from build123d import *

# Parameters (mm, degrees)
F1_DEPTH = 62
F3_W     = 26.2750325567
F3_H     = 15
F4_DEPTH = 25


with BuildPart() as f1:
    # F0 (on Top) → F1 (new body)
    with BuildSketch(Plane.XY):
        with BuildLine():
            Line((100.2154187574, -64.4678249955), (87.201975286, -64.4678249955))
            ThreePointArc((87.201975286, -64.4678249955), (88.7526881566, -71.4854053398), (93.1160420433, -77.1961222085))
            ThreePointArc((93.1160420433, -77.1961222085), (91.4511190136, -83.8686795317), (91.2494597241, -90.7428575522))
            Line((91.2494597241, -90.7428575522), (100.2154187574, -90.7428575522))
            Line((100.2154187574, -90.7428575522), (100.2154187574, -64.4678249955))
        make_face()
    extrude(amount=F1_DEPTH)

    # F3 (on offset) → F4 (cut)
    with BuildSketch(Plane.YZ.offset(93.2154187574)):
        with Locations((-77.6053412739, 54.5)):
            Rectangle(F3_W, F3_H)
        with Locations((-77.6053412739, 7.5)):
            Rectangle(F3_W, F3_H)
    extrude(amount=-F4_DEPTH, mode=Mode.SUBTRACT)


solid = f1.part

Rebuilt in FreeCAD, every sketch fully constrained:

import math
import FreeCAD as App
import Part
import Sketcher
Q = App.Units.Quantity


def add_polygon(sketch, points):
    """Adds a closed chain of lines whose ends are joined by coincident constraints."""
    first, n = sketch.GeometryCount, len(points)
    for a, b in zip(points, points[1:] + points[:1]):
        sketch.addGeometry(Part.LineSegment(App.Vector(*a, 0), App.Vector(*b, 0)), False)
    for i in range(n):
        sketch.addConstraint(Sketcher.Constraint("Coincident", first + i, 2, first + (i + 1) % n, 1))

doc = App.newDocument("Part")
body = doc.addObject("PartDesign::Body", "Body")

# Sketch on XY plane
sketch1 = doc.addObject("Sketcher::SketchObject", "Sketch")
body.addObject(sketch1)
sketch1.AttachmentSupport = (doc.XY_Plane, [""])
sketch1.MapMode = "FlatFace"
sketch1.addGeometry(Part.LineSegment(App.Vector(100, -64, 0), App.Vector(87, -64, 0)), False)
sketch1.addGeometry(Part.ArcOfCircle(Part.Circle(App.Vector(104, -64, 0), App.Vector(0, 0, 1), 17), math.radians(180), math.radians(230)), False)
sketch1.addGeometry(Part.ArcOfCircle(Part.Circle(App.Vector(123, -88, 0), App.Vector(0, 0, 1), 32), math.radians(160), math.radians(184)), False)
sketch1.addGeometry(Part.LineSegment(App.Vector(91, -91, 0), App.Vector(100, -91, 0)), False)
sketch1.addGeometry(Part.LineSegment(App.Vector(100, -91, 0), App.Vector(100, -64, 0)), False)
sketch1.addConstraint(Sketcher.Constraint("Coincident", 0, 2, 1, 1))
sketch1.addConstraint(Sketcher.Constraint("Coincident", 1, 2, 2, 1))
sketch1.addConstraint(Sketcher.Constraint("Coincident", 2, 2, 3, 1))
sketch1.addConstraint(Sketcher.Constraint("Coincident", 3, 2, 4, 1))
sketch1.addConstraint(Sketcher.Constraint("Coincident", 4, 2, 0, 1))
sketch1.addConstraint(Sketcher.Constraint("Horizontal", 0))
sketch1.addConstraint(Sketcher.Constraint("Horizontal", 3))
sketch1.addConstraint(Sketcher.Constraint("Vertical", 4))
sketch1.addConstraint(Sketcher.Constraint("Horizontal", 1, 3, 0, 2))
sketch1.addConstraint(Sketcher.Constraint("Radius", 1, Q("16.654 mm")))
sketch1.addConstraint(Sketcher.Constraint("Radius", 2, Q("32.019054 mm")))
sketch1.addConstraint(Sketcher.Constraint("DistanceX", 3, 1, 3, 2, Q("8.965959 mm")))
sketch1.addConstraint(Sketcher.Constraint("DistanceX", 0, 2, 0, 1, Q("13.013443 mm")))
sketch1.addConstraint(Sketcher.Constraint("DistanceY", 4, 1, 4, 2, Q("26.275033 mm")))
sketch1.addConstraint(Sketcher.Constraint("DistanceY", 2, 3, -1, 1, Q("88.239238 mm")))
sketch1.addConstraint(Sketcher.Constraint("DistanceX", -1, 1, 2, 2, Q("91.24946 mm")))
sketch1.addConstraint(Sketcher.Constraint("DistanceX", 1, 2, 2, 3, Q("30.054441 mm")))
pad1 = doc.addObject("PartDesign::Pad", "Pad")
body.addObject(pad1)
pad1.Profile = sketch1
pad1.Length = 62

# Sketch on YZ plane
sketch2 = doc.addObject("Sketcher::SketchObject", "Sketch001")
body.addObject(sketch2)
sketch2.AttachmentSupport = (doc.YZ_Plane, [""])
sketch2.MapMode = "FlatFace"
sketch2.AttachmentOffset = App.Placement(App.Vector(0, 0, 93.215419), App.Rotation())
add_polygon(sketch2, [(-91, 62), (-91, 47), (-64, 47), (-64, 62)])  # lines 0-3
add_polygon(sketch2, [(-91, 15), (-91, 0), (-64, 0), (-64, 15)])  # lines 4-7
sketch2.addConstraint(Sketcher.Constraint("Vertical", 0))
sketch2.addConstraint(Sketcher.Constraint("Horizontal", 1))
sketch2.addConstraint(Sketcher.Constraint("Vertical", 2))
sketch2.addConstraint(Sketcher.Constraint("Horizontal", 3))
sketch2.addConstraint(Sketcher.Constraint("Vertical", 4))
sketch2.addConstraint(Sketcher.Constraint("Horizontal", 5))
sketch2.addConstraint(Sketcher.Constraint("Vertical", 6))
sketch2.addConstraint(Sketcher.Constraint("Horizontal", 7))
sketch2.addConstraint(Sketcher.Constraint("PointOnObject", 4, 2, -1))
sketch2.addConstraint(Sketcher.Constraint("Vertical", 3, 2, 4, 2))
sketch2.addConstraint(Sketcher.Constraint("Vertical", 2, 2, 5, 2))
sketch2.addConstraint(Sketcher.Constraint("Equal", 2, 4))
sketch2.addConstraint(Sketcher.Constraint("DistanceY", 0, 2, 0, 1, Q("15 mm")))
sketch2.addConstraint(Sketcher.Constraint("DistanceY", -1, 1, 0, 2, Q("47 mm")))
sketch2.addConstraint(Sketcher.Constraint("DistanceX", 1, 1, 1, 2, Q("26.275033 mm")))
sketch2.addConstraint(Sketcher.Constraint("DistanceX", 0, 2, -1, 1, Q("90.742858 mm")))
pocket1 = doc.addObject("PartDesign::Pocket", "Pocket")
body.addObject(pocket1)
pocket1.Profile = sketch2
pocket1.Length = 25

doc.recompute()
